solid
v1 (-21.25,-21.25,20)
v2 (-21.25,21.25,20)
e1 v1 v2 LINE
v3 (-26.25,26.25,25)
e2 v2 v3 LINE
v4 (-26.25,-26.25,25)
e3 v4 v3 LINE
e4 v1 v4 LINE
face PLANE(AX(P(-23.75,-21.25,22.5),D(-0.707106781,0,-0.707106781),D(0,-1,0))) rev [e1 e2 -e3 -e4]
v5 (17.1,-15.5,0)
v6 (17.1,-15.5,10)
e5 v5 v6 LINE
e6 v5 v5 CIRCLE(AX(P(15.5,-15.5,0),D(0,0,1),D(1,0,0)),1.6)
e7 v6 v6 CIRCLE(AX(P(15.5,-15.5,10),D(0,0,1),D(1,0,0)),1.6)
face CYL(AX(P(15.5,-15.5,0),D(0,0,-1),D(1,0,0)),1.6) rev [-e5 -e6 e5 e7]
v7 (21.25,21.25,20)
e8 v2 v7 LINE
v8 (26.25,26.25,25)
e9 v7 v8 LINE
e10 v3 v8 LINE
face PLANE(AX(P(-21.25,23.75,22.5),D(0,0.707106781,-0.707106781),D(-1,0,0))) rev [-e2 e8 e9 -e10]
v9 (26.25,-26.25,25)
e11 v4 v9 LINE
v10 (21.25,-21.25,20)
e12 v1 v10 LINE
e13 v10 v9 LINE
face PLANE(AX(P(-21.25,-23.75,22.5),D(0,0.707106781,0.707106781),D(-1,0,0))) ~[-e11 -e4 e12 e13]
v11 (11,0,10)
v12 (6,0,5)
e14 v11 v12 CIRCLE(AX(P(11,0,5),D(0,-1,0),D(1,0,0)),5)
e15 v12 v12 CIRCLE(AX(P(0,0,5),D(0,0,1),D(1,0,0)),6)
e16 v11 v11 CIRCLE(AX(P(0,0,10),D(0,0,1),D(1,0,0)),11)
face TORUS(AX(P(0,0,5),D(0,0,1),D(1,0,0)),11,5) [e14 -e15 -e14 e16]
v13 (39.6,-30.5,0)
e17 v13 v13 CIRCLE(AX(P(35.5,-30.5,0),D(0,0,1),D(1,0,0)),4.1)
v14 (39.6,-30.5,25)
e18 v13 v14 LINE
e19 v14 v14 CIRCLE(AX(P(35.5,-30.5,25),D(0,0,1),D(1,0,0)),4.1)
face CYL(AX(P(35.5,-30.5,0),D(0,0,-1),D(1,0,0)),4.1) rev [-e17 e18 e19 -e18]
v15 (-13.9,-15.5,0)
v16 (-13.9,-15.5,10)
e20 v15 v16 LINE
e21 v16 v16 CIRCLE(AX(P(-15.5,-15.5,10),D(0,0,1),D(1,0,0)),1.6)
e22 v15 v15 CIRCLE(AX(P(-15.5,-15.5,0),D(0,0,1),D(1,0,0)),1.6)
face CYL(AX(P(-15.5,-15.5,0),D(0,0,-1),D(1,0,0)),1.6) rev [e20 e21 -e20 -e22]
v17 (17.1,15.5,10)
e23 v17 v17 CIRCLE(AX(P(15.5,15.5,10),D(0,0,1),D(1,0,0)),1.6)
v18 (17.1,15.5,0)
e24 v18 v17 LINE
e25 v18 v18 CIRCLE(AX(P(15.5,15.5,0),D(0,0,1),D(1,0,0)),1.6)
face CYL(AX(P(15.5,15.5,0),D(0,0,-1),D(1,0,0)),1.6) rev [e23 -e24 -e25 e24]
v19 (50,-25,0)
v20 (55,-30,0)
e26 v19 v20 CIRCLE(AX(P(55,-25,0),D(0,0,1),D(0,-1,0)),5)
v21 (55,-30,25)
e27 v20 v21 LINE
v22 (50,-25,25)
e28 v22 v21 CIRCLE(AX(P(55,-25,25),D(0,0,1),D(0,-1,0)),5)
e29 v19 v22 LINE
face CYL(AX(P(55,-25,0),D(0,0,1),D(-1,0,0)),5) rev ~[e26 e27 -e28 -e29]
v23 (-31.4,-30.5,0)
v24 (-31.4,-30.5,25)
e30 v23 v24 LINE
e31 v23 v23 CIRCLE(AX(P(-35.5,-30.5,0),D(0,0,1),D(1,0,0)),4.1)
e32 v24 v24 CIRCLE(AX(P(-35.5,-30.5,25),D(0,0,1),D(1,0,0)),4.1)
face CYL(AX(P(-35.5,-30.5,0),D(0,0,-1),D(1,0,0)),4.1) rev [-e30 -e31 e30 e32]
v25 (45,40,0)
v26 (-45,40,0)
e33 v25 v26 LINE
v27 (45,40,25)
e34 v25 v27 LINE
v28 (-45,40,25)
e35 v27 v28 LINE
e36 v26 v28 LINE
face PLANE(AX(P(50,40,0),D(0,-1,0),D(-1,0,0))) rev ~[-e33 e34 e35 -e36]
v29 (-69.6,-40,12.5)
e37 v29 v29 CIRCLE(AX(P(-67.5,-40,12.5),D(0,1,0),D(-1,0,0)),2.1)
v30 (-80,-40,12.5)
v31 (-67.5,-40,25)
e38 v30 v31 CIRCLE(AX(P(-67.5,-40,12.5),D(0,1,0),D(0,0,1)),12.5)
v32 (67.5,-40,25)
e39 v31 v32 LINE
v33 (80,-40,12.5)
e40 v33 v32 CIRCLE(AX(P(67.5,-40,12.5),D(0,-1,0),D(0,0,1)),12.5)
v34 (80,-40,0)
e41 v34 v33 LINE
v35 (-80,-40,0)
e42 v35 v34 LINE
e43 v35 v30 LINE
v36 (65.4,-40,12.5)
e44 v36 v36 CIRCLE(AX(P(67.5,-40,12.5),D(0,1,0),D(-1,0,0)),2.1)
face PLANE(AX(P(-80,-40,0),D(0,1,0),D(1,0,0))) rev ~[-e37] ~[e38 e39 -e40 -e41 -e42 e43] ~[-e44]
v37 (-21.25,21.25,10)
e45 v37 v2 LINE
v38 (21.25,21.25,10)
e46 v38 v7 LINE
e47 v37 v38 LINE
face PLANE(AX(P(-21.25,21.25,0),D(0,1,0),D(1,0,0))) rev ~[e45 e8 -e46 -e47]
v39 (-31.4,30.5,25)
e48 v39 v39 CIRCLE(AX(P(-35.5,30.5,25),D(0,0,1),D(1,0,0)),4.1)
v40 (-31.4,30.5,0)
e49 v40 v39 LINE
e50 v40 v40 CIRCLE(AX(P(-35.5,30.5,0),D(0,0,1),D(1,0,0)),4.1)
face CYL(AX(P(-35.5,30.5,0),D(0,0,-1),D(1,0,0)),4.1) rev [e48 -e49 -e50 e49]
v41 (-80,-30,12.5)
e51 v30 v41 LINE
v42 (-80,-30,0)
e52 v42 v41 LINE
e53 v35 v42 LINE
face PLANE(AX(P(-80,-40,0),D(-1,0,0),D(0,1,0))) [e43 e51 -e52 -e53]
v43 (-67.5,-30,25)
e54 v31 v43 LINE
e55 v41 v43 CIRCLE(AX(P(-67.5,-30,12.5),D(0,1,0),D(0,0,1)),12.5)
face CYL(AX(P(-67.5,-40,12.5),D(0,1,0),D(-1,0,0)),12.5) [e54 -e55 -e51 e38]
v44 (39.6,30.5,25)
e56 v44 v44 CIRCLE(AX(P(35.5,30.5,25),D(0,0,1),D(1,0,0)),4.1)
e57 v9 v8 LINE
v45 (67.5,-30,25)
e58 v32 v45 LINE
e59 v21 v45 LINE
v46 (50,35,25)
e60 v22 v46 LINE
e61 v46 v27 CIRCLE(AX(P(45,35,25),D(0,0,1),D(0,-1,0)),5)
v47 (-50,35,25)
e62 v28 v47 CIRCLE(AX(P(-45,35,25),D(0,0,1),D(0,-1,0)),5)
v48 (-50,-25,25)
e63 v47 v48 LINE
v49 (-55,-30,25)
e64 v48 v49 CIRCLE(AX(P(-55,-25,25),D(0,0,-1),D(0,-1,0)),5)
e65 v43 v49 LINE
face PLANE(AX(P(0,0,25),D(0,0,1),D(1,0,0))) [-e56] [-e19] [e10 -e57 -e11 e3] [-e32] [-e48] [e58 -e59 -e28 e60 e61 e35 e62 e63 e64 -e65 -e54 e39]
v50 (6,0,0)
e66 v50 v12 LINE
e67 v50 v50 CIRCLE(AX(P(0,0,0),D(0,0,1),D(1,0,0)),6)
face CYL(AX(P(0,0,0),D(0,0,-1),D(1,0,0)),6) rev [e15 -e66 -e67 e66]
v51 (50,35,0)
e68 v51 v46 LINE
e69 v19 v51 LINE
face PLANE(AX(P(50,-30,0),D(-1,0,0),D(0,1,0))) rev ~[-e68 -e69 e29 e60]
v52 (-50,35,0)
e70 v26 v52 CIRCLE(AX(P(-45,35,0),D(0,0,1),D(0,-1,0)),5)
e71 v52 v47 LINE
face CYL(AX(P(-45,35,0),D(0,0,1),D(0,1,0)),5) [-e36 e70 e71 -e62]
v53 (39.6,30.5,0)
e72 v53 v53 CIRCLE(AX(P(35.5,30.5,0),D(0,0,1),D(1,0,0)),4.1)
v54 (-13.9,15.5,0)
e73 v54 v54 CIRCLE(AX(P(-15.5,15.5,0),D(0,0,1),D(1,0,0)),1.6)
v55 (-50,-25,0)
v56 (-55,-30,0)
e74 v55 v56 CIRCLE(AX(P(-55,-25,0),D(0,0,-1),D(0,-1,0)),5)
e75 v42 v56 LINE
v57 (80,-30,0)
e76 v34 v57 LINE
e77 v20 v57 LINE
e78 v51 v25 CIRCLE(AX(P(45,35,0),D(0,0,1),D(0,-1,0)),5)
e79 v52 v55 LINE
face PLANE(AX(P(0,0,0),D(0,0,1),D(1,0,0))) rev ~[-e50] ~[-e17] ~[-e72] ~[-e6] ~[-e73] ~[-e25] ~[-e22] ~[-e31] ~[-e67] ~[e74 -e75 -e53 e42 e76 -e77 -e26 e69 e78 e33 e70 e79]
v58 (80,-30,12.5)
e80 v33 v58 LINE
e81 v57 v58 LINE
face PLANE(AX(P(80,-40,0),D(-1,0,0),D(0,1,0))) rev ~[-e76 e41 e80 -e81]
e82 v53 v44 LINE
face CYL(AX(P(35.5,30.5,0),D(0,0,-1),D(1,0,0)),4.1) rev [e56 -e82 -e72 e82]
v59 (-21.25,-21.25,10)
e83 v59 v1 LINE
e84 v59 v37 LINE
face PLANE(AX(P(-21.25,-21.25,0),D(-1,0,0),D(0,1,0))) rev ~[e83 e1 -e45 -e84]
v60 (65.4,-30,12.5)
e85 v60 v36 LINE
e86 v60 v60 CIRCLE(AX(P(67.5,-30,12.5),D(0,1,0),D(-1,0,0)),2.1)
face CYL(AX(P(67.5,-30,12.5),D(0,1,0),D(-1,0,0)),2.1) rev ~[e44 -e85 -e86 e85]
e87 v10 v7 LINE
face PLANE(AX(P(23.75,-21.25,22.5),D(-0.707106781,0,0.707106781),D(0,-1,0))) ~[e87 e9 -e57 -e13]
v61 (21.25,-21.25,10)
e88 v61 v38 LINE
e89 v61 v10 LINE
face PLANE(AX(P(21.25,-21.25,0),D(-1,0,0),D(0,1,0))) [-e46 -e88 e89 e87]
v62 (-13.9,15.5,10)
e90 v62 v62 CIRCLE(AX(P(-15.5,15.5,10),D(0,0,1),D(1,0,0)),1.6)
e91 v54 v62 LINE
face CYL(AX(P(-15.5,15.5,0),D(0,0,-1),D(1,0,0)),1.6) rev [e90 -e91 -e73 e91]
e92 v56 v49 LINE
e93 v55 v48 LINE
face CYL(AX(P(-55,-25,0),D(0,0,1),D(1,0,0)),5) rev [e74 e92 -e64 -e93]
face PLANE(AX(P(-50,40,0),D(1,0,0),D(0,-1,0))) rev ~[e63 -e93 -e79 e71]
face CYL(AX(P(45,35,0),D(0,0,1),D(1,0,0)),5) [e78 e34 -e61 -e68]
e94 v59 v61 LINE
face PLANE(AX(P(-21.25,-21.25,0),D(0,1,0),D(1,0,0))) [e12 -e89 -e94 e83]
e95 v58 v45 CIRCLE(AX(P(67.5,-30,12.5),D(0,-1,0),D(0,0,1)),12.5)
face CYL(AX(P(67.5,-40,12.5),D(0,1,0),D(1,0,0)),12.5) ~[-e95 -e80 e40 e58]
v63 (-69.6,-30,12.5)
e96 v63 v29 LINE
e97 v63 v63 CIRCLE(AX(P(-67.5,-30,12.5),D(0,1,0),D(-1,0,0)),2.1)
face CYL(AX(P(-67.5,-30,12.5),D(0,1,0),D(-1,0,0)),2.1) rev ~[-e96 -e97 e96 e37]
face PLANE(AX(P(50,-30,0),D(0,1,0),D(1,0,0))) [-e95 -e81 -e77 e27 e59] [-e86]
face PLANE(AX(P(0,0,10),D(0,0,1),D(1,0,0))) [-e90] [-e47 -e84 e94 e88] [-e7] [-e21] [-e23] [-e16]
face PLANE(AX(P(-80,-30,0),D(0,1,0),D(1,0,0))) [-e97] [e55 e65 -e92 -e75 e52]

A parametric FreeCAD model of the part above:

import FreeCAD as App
import Part
import Sketcher
Q = App.Units.Quantity


def edges_at(feature, points):
    """Names of the edges that pass closest to the given points."""
    edges = feature.Shape.Edges
    near = lambda p: min(range(len(edges)), key=lambda i: edges[i].distToShape(Part.Vertex(*p))[0])
    return sorted({f"Edge{near(p) + 1}" for p in points})


def add_polygon(sketch, points):
    """Adds a closed chain of lines whose ends are joined by coincident constraints."""
    first, n = sketch.GeometryCount, len(points)
    for a, b in zip(points, points[1:] + points[:1]):
        sketch.addGeometry(Part.LineSegment(App.Vector(*a, 0), App.Vector(*b, 0)), False)
    for i in range(n):
        sketch.addConstraint(Sketcher.Constraint("Coincident", first + i, 2, first + (i + 1) % n, 1))

doc = App.newDocument("Part")
body = doc.addObject("PartDesign::Body", "Body")

# Sketch on XY plane
sketch1 = body.newObject("Sketcher::SketchObject", "Sketch")
sketch1.AttachmentSupport = (doc.getObject("XY_Plane"), [""])
sketch1.MapMode = "FlatFace"
add_polygon(sketch1, [(50, -30), (50, 40), (-50, 40), (-50, -30), (-80, -30), (-80, -40), (80, -40), (80, -30)])  # lines 0-7
sketch1.addGeometry(Part.Circle(App.Vector(-35.5, -30.5, 0), App.Vector(0, 0, 1), 4.1), False)  # 8
sketch1.addGeometry(Part.Circle(App.Vector(35.5, -30.5, 0), App.Vector(0, 0, 1), 4.1), False)  # 9
sketch1.addGeometry(Part.Circle(App.Vector(-35.5, 30.5, 0), App.Vector(0, 0, 1), 4.1), False)  # 10
add_polygon(sketch1, [(21.25, -21.25), (-21.25, -21.25), (-21.25, 21.25), (21.25, 21.25)])  # lines 11-14
sketch1.addGeometry(Part.Circle(App.Vector(35.5, 30.5, 0), App.Vector(0, 0, 1), 4.1), False)  # 15
sketch1.addConstraint(Sketcher.Constraint("Vertical", 0))
sketch1.addConstraint(Sketcher.Constraint("Horizontal", 1))
sketch1.addConstraint(Sketcher.Constraint("Vertical", 2))
sketch1.addConstraint(Sketcher.Constraint("Horizontal", 3))
sketch1.addConstraint(Sketcher.Constraint("Vertical", 4))
sketch1.addConstraint(Sketcher.Constraint("Horizontal", 5))
sketch1.addConstraint(Sketcher.Constraint("Vertical", 6))
sketch1.addConstraint(Sketcher.Constraint("Horizontal", 7))
sketch1.addConstraint(Sketcher.Constraint("Horizontal", 11))
sketch1.addConstraint(Sketcher.Constraint("Vertical", 12))
sketch1.addConstraint(Sketcher.Constraint("Horizontal", 13))
sketch1.addConstraint(Sketcher.Constraint("Vertical", 14))
sketch1.addConstraint(Sketcher.Constraint("Equal", 8, 9))
sketch1.addConstraint(Sketcher.Constraint("Equal", 9, 10))
sketch1.addConstraint(Sketcher.Constraint("Equal", 10, 15))
sketch1.addConstraint(Sketcher.Constraint("Symmetric", 9, 3, 10, 3, -1, 1))
sketch1.addConstraint(Sketcher.Constraint("Symmetric", 8, 3, 15, 3, -1, 1))
sketch1.addConstraint(Sketcher.Constraint("Symmetric", 11, 2, 13, 2, -1, 1))
sketch1.addConstraint(Sketcher.Constraint("Symmetric", 8, 3, 9, 3, -2))
sketch1.addConstraint(Sketcher.Constraint("Symmetric", 3, 2, 6, 2, -2))
sketch1.addConstraint(Sketcher.Constraint("Equal", 3, 7))
sketch1.addConstraint(Sketcher.Constraint("Equal", 13, 12))
sketch1.addConstraint(Sketcher.Constraint("Diameter", 8, Q("8.2 mm")))
sketch1.addConstraint(Sketcher.Constraint("DistanceX", 1, 2, 1, 1, Q("100 mm")))
sketch1.addConstraint(Sketcher.Constraint("DistanceX", 3, 2, 3, 1, Q("30 mm")))
sketch1.addConstraint(Sketcher.Constraint("DistanceY", 0, 1, 0, 2, Q("70 mm")))
sketch1.addConstraint(Sketcher.Constraint("DistanceY", 4, 2, 4, 1, Q("10 mm")))
sketch1.addConstraint(Sketcher.Constraint("DistanceX", 11, 2, 11, 1, Q("42.5 mm")))
sketch1.addConstraint(Sketcher.Constraint("DistanceY", -1, 1, 0, 2, Q("40 mm")))
sketch1.addConstraint(Sketcher.Constraint("DistanceX", 8, 3, 9, 3, Q("71 mm")))
sketch1.addConstraint(Sketcher.Constraint("DistanceY", 8, 3, 10, 3, Q("61 mm")))
pad1 = body.newObject("PartDesign::Pad", "Pad")
pad1.Profile = sketch1
pad1.Length = 25

# Sketch on XY plane
sketch2 = body.newObject("Sketcher::SketchObject", "Sketch001")
sketch2.AttachmentSupport = (doc.getObject("XY_Plane"), [""])
sketch2.MapMode = "FlatFace"
add_polygon(sketch2, [(-21.25, 21.25), (-21.25, -21.25), (21.25, -21.25), (21.25, 21.25)])  # lines 0-3
sketch2.addGeometry(Part.Circle(App.Vector(-15.5, -15.5, 0), App.Vector(0, 0, 1), 1.6), False)  # 4
sketch2.addGeometry(Part.Circle(App.Vector(15.5, -15.5, 0), App.Vector(0, 0, 1), 1.6), False)  # 5
sketch2.addGeometry(Part.Circle(App.Vector(-15.5, 15.5, 0), App.Vector(0, 0, 1), 1.6), False)  # 6
sketch2.addGeometry(Part.Circle(App.Vector(0, 0, 0), App.Vector(0, 0, 1), 6), False)  # 7
sketch2.addGeometry(Part.Circle(App.Vector(15.5, 15.5, 0), App.Vector(0, 0, 1), 1.6), False)  # 8
sketch2.addConstraint(Sketcher.Constraint("Vertical", 0))
sketch2.addConstraint(Sketcher.Constraint("Horizontal", 1))
sketch2.addConstraint(Sketcher.Constraint("Vertical", 2))
sketch2.addConstraint(Sketcher.Constraint("Horizontal", 3))
sketch2.addConstraint(Sketcher.Constraint("Coincident", 7, 3, -1, 1))
sketch2.addConstraint(Sketcher.Constraint("Equal", 4, 5))
sketch2.addConstraint(Sketcher.Constraint("Equal", 5, 6))
sketch2.addConstraint(Sketcher.Constraint("Equal", 6, 8))
sketch2.addConstraint(Sketcher.Constraint("Symmetric", 5, 3, 6, 3, -1, 1))
sketch2.addConstraint(Sketcher.Constraint("Symmetric", 4, 3, 8, 3, -1, 1))
sketch2.addConstraint(Sketcher.Constraint("Symmetric", 0, 2, 2, 2, -1, 1))
sketch2.addConstraint(Sketcher.Constraint("Symmetric", 4, 3, 5, 3, -2))
sketch2.addConstraint(Sketcher.Constraint("Equal", 3, 0))
sketch2.addConstraint(Sketcher.Constraint("Diameter", 7, Q("12 mm")))
sketch2.addConstraint(Sketcher.Constraint("Diameter", 4, Q("3.2 mm")))
sketch2.addConstraint(Sketcher.Constraint("DistanceX", 1, 1, 1, 2, Q("42.5 mm")))
sketch2.addConstraint(Sketcher.Constraint("DistanceX", 4, 3, 5, 3, Q("31 mm")))
sketch2.addConstraint(Sketcher.Constraint("DistanceY", 4, 3, 6, 3, Q("31 mm")))
pad2 = body.newObject("PartDesign::Pad", "Pad001")
pad2.Profile = sketch2
pad2.Length = 10
doc.recompute()

chamfer = body.newObject("PartDesign::Chamfer", "Chamfer")
chamfer.Base = (pad2, edges_at(pad2, [
    (-21.25, 0, 25),
    (0, 21.25, 25),
    (21.25, 0, 25),
    (0, -21.25, 25),
]))
chamfer.Size = 5
doc.recompute()

fillet = body.newObject("PartDesign::Fillet", "Fillet")
fillet.Base = (chamfer, edges_at(chamfer, [(-6, 0, 10)]))
fillet.Radius = 5
doc.recompute()

fillet2 = body.newObject("PartDesign::Fillet", "Fillet001")
fillet2.Base = (fillet, edges_at(fillet, [
    (50, -30, 12.5),
    (-50, -30, 12.5),
    (-50, 40, 12.5),
    (50, 40, 12.5),
]))
fillet2.Radius = 5

# Sketch on XZ plane
sketch3 = body.newObject("Sketcher::SketchObject", "Sketch002")
sketch3.AttachmentSupport = (doc.getObject("XZ_Plane"), [""])
sketch3.MapMode = "FlatFace"
sketch3.AttachmentOffset = App.Placement(App.Vector(0, 0, 30), App.Rotation())
sketch3.addGeometry(Part.Circle(App.Vector(-67.5, 12.5, 0), App.Vector(0, 0, 1), 2.1), False)
sketch3.addConstraint(Sketcher.Constraint("Diameter", 0, Q("4.2 mm")))
sketch3.addConstraint(Sketcher.Constraint("DistanceX", 0, 3, -1, 1, Q("67.5 mm")))
sketch3.addConstraint(Sketcher.Constraint("DistanceY", -1, 1, 0, 3, Q("12.5 mm")))
pocket1 = body.newObject("PartDesign::Pocket", "Pocket")
pocket1.Profile = sketch3
pocket1.Length = 25
pocket1.Reversed = True
doc.recompute()

fillet3 = body.newObject("PartDesign::Fillet", "Fillet002")
fillet3.Base = (pocket1, edges_at(pocket1, [(-80, -35, 25), (80, -35, 25)]))
fillet3.Radius = 12.5

# Sketch on XZ plane
sketch4 = body.newObject("Sketcher::SketchObject", "Sketch003")
sketch4.AttachmentSupport = (doc.getObject("XZ_Plane"), [""])
sketch4.MapMode = "FlatFace"
sketch4.AttachmentOffset = App.Placement(App.Vector(0, 0, 30), App.Rotation())
sketch4.addGeometry(Part.Circle(App.Vector(67.5, 12.5, 0), App.Vector(0, 0, 1), 2.1), False)
sketch4.addConstraint(Sketcher.Constraint("Diameter", 0, Q("4.2 mm")))
sketch4.addConstraint(Sketcher.Constraint("DistanceX", -1, 1, 0, 3, Q("67.5 mm")))
sketch4.addConstraint(Sketcher.Constraint("DistanceY", -1, 1, 0, 3, Q("12.5 mm")))
pocket2 = body.newObject("PartDesign::Pocket", "Pocket001")
pocket2.Profile = sketch4
pocket2.Length = 25
pocket2.Reversed = True

doc.recompute()
